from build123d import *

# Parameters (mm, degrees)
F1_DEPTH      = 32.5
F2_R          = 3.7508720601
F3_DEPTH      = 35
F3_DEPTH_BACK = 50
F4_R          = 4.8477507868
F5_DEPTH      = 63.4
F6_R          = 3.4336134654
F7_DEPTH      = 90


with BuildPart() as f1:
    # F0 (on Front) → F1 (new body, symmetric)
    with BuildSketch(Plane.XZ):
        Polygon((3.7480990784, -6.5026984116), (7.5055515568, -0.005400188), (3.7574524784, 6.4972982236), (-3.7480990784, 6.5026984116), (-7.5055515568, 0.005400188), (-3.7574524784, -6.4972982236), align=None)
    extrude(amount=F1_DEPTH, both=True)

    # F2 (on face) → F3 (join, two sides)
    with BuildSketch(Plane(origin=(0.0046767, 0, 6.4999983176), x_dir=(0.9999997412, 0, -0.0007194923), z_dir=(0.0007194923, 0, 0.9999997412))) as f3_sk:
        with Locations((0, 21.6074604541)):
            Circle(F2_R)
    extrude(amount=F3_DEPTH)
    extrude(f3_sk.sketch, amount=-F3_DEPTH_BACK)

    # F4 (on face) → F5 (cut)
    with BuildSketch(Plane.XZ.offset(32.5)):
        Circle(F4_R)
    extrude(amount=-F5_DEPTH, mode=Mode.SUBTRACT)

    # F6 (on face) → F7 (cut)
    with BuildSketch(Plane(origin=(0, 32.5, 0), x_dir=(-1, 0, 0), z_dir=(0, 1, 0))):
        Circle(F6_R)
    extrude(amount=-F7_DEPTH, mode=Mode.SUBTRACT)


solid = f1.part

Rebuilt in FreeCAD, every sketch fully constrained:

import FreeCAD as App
import Part
import Sketcher


def add_polygon(sketch, points):
    """Adds a closed chain of lines whose ends are joined by coincident constraints."""
    first, n = sketch.GeometryCount, len(points)
    for a, b in zip(points, points[1:] + points[:1]):
        sketch.addGeometry(Part.LineSegment(App.Vector(*a, 0), App.Vector(*b, 0)), False)
    for i in range(n):
        sketch.addConstraint(Sketcher.Constraint("Coincident", first + i, 2, first + (i + 1) % n, 1))

doc = App.newDocument("Part")
body = doc.addObject("PartDesign::Body", "Body")

sketch1 = body.newObject("Sketcher::SketchObject", "Sketch")
sketch1.AttachmentSupport = (doc.getObject("XZ_Plane"), [""])
sketch1.MapMode = "FlatFace"
add_polygon(sketch1, [(4, -7), (8, 0), (4, 6), (-4, 7), (-8, 0), (-4, -6)])
sketch1.addConstraint(Sketcher.Constraint("Symmetric", 0, 2, 3, 2, -1, 1))
sketch1.addConstraint(Sketcher.Constraint("Symmetric", 1, 2, 4, 2, -1, 1))
sketch1.addConstraint(Sketcher.Constraint("Symmetric", 2, 2, 5, 2, -1, 1))
sketch1.addConstraint(Sketcher.Constraint("Equal", 0, 1))
sketch1.addConstraint(Sketcher.Constraint("Equal", 1, 2))
sketch1.addConstraint(Sketcher.Constraint("DistanceY", 0, 2, -1, 1, 0.0054))
sketch1.addConstraint(Sketcher.Constraint("DistanceY", -1, 1, 1, 2, 6.497298))
sketch1.addConstraint(Sketcher.Constraint("DistanceX", 2, 2, -1, 1, 3.748099))
sketch1.addConstraint(Sketcher.Constraint("DistanceY", -1, 1, 2, 2, 6.502698))
pad1 = body.newObject("PartDesign::Pad", "Pad")
pad1.Profile = sketch1
pad1.Length = 65
pad1.Midplane = True

sketch2 = body.newObject("Sketcher::SketchObject", "Sketch001")
sketch2.Placement = App.Placement(App.Vector(0.004677, 0, 6.499998), App.Rotation(App.Vector(0.999999741, 0, -0.000719492), App.Vector(0, 1, 0), App.Vector(0.000719492, 0, 0.999999741), "ZXY"))
sketch2.addGeometry(Part.Circle(App.Vector(0, 21.6, 0), App.Vector(0, 0, 1), 3.8), False)
sketch2.addConstraint(Sketcher.Constraint("PointOnObject", 0, 3, -2))
sketch2.addConstraint(Sketcher.Constraint("Diameter", 0, 7.501744))
sketch2.addConstraint(Sketcher.Constraint("DistanceY", -1, 1, 0, 3, 21.60746))
pad2 = body.newObject("PartDesign::Pad", "Pad001")
pad2.Profile = sketch2
pad2.Type = "TwoLengths"
pad2.Length = 35
pad2.Length2 = 50

sketch3 = body.newObject("Sketcher::SketchObject", "Sketch002")
sketch3.AttachmentSupport = (doc.getObject("XZ_Plane"), [""])
sketch3.MapMode = "FlatFace"
sketch3.AttachmentOffset = App.Placement(App.Vector(0, 0, 32.5), App.Rotation())
sketch3.addGeometry(Part.Circle(App.Vector(0, 0, 0), App.Vector(0, 0, 1), 4.8), False)
sketch3.addConstraint(Sketcher.Constraint("Coincident", 0, 3, -1, 1))
sketch3.addConstraint(Sketcher.Constraint("Diameter", 0, 9.695502))
pocket1 = body.newObject("PartDesign::Pocket", "Pocket")
pocket1.Profile = sketch3
pocket1.Length = 63.4

sketch4 = body.newObject("Sketcher::SketchObject", "Sketch003")
sketch4.AttachmentSupport = (doc.getObject("XZ_Plane"), [""])
sketch4.MapMode = "FlatFace"
sketch4.AttachmentOffset = App.Placement(App.Vector(0, 0, -32.5), App.Rotation())
sketch4.addGeometry(Part.Circle(App.Vector(0, 0, 0), App.Vector(0, 0, 1), 3.4), False)
sketch4.addConstraint(Sketcher.Constraint("Coincident", 0, 3, -1, 1))
sketch4.addConstraint(Sketcher.Constraint("Diameter", 0, 6.867227))
pocket2 = body.newObject("PartDesign::Pocket", "Pocket001")
pocket2.Profile = sketch4
pocket2.Length = 90
pocket2.Reversed = True

doc.recompute()
